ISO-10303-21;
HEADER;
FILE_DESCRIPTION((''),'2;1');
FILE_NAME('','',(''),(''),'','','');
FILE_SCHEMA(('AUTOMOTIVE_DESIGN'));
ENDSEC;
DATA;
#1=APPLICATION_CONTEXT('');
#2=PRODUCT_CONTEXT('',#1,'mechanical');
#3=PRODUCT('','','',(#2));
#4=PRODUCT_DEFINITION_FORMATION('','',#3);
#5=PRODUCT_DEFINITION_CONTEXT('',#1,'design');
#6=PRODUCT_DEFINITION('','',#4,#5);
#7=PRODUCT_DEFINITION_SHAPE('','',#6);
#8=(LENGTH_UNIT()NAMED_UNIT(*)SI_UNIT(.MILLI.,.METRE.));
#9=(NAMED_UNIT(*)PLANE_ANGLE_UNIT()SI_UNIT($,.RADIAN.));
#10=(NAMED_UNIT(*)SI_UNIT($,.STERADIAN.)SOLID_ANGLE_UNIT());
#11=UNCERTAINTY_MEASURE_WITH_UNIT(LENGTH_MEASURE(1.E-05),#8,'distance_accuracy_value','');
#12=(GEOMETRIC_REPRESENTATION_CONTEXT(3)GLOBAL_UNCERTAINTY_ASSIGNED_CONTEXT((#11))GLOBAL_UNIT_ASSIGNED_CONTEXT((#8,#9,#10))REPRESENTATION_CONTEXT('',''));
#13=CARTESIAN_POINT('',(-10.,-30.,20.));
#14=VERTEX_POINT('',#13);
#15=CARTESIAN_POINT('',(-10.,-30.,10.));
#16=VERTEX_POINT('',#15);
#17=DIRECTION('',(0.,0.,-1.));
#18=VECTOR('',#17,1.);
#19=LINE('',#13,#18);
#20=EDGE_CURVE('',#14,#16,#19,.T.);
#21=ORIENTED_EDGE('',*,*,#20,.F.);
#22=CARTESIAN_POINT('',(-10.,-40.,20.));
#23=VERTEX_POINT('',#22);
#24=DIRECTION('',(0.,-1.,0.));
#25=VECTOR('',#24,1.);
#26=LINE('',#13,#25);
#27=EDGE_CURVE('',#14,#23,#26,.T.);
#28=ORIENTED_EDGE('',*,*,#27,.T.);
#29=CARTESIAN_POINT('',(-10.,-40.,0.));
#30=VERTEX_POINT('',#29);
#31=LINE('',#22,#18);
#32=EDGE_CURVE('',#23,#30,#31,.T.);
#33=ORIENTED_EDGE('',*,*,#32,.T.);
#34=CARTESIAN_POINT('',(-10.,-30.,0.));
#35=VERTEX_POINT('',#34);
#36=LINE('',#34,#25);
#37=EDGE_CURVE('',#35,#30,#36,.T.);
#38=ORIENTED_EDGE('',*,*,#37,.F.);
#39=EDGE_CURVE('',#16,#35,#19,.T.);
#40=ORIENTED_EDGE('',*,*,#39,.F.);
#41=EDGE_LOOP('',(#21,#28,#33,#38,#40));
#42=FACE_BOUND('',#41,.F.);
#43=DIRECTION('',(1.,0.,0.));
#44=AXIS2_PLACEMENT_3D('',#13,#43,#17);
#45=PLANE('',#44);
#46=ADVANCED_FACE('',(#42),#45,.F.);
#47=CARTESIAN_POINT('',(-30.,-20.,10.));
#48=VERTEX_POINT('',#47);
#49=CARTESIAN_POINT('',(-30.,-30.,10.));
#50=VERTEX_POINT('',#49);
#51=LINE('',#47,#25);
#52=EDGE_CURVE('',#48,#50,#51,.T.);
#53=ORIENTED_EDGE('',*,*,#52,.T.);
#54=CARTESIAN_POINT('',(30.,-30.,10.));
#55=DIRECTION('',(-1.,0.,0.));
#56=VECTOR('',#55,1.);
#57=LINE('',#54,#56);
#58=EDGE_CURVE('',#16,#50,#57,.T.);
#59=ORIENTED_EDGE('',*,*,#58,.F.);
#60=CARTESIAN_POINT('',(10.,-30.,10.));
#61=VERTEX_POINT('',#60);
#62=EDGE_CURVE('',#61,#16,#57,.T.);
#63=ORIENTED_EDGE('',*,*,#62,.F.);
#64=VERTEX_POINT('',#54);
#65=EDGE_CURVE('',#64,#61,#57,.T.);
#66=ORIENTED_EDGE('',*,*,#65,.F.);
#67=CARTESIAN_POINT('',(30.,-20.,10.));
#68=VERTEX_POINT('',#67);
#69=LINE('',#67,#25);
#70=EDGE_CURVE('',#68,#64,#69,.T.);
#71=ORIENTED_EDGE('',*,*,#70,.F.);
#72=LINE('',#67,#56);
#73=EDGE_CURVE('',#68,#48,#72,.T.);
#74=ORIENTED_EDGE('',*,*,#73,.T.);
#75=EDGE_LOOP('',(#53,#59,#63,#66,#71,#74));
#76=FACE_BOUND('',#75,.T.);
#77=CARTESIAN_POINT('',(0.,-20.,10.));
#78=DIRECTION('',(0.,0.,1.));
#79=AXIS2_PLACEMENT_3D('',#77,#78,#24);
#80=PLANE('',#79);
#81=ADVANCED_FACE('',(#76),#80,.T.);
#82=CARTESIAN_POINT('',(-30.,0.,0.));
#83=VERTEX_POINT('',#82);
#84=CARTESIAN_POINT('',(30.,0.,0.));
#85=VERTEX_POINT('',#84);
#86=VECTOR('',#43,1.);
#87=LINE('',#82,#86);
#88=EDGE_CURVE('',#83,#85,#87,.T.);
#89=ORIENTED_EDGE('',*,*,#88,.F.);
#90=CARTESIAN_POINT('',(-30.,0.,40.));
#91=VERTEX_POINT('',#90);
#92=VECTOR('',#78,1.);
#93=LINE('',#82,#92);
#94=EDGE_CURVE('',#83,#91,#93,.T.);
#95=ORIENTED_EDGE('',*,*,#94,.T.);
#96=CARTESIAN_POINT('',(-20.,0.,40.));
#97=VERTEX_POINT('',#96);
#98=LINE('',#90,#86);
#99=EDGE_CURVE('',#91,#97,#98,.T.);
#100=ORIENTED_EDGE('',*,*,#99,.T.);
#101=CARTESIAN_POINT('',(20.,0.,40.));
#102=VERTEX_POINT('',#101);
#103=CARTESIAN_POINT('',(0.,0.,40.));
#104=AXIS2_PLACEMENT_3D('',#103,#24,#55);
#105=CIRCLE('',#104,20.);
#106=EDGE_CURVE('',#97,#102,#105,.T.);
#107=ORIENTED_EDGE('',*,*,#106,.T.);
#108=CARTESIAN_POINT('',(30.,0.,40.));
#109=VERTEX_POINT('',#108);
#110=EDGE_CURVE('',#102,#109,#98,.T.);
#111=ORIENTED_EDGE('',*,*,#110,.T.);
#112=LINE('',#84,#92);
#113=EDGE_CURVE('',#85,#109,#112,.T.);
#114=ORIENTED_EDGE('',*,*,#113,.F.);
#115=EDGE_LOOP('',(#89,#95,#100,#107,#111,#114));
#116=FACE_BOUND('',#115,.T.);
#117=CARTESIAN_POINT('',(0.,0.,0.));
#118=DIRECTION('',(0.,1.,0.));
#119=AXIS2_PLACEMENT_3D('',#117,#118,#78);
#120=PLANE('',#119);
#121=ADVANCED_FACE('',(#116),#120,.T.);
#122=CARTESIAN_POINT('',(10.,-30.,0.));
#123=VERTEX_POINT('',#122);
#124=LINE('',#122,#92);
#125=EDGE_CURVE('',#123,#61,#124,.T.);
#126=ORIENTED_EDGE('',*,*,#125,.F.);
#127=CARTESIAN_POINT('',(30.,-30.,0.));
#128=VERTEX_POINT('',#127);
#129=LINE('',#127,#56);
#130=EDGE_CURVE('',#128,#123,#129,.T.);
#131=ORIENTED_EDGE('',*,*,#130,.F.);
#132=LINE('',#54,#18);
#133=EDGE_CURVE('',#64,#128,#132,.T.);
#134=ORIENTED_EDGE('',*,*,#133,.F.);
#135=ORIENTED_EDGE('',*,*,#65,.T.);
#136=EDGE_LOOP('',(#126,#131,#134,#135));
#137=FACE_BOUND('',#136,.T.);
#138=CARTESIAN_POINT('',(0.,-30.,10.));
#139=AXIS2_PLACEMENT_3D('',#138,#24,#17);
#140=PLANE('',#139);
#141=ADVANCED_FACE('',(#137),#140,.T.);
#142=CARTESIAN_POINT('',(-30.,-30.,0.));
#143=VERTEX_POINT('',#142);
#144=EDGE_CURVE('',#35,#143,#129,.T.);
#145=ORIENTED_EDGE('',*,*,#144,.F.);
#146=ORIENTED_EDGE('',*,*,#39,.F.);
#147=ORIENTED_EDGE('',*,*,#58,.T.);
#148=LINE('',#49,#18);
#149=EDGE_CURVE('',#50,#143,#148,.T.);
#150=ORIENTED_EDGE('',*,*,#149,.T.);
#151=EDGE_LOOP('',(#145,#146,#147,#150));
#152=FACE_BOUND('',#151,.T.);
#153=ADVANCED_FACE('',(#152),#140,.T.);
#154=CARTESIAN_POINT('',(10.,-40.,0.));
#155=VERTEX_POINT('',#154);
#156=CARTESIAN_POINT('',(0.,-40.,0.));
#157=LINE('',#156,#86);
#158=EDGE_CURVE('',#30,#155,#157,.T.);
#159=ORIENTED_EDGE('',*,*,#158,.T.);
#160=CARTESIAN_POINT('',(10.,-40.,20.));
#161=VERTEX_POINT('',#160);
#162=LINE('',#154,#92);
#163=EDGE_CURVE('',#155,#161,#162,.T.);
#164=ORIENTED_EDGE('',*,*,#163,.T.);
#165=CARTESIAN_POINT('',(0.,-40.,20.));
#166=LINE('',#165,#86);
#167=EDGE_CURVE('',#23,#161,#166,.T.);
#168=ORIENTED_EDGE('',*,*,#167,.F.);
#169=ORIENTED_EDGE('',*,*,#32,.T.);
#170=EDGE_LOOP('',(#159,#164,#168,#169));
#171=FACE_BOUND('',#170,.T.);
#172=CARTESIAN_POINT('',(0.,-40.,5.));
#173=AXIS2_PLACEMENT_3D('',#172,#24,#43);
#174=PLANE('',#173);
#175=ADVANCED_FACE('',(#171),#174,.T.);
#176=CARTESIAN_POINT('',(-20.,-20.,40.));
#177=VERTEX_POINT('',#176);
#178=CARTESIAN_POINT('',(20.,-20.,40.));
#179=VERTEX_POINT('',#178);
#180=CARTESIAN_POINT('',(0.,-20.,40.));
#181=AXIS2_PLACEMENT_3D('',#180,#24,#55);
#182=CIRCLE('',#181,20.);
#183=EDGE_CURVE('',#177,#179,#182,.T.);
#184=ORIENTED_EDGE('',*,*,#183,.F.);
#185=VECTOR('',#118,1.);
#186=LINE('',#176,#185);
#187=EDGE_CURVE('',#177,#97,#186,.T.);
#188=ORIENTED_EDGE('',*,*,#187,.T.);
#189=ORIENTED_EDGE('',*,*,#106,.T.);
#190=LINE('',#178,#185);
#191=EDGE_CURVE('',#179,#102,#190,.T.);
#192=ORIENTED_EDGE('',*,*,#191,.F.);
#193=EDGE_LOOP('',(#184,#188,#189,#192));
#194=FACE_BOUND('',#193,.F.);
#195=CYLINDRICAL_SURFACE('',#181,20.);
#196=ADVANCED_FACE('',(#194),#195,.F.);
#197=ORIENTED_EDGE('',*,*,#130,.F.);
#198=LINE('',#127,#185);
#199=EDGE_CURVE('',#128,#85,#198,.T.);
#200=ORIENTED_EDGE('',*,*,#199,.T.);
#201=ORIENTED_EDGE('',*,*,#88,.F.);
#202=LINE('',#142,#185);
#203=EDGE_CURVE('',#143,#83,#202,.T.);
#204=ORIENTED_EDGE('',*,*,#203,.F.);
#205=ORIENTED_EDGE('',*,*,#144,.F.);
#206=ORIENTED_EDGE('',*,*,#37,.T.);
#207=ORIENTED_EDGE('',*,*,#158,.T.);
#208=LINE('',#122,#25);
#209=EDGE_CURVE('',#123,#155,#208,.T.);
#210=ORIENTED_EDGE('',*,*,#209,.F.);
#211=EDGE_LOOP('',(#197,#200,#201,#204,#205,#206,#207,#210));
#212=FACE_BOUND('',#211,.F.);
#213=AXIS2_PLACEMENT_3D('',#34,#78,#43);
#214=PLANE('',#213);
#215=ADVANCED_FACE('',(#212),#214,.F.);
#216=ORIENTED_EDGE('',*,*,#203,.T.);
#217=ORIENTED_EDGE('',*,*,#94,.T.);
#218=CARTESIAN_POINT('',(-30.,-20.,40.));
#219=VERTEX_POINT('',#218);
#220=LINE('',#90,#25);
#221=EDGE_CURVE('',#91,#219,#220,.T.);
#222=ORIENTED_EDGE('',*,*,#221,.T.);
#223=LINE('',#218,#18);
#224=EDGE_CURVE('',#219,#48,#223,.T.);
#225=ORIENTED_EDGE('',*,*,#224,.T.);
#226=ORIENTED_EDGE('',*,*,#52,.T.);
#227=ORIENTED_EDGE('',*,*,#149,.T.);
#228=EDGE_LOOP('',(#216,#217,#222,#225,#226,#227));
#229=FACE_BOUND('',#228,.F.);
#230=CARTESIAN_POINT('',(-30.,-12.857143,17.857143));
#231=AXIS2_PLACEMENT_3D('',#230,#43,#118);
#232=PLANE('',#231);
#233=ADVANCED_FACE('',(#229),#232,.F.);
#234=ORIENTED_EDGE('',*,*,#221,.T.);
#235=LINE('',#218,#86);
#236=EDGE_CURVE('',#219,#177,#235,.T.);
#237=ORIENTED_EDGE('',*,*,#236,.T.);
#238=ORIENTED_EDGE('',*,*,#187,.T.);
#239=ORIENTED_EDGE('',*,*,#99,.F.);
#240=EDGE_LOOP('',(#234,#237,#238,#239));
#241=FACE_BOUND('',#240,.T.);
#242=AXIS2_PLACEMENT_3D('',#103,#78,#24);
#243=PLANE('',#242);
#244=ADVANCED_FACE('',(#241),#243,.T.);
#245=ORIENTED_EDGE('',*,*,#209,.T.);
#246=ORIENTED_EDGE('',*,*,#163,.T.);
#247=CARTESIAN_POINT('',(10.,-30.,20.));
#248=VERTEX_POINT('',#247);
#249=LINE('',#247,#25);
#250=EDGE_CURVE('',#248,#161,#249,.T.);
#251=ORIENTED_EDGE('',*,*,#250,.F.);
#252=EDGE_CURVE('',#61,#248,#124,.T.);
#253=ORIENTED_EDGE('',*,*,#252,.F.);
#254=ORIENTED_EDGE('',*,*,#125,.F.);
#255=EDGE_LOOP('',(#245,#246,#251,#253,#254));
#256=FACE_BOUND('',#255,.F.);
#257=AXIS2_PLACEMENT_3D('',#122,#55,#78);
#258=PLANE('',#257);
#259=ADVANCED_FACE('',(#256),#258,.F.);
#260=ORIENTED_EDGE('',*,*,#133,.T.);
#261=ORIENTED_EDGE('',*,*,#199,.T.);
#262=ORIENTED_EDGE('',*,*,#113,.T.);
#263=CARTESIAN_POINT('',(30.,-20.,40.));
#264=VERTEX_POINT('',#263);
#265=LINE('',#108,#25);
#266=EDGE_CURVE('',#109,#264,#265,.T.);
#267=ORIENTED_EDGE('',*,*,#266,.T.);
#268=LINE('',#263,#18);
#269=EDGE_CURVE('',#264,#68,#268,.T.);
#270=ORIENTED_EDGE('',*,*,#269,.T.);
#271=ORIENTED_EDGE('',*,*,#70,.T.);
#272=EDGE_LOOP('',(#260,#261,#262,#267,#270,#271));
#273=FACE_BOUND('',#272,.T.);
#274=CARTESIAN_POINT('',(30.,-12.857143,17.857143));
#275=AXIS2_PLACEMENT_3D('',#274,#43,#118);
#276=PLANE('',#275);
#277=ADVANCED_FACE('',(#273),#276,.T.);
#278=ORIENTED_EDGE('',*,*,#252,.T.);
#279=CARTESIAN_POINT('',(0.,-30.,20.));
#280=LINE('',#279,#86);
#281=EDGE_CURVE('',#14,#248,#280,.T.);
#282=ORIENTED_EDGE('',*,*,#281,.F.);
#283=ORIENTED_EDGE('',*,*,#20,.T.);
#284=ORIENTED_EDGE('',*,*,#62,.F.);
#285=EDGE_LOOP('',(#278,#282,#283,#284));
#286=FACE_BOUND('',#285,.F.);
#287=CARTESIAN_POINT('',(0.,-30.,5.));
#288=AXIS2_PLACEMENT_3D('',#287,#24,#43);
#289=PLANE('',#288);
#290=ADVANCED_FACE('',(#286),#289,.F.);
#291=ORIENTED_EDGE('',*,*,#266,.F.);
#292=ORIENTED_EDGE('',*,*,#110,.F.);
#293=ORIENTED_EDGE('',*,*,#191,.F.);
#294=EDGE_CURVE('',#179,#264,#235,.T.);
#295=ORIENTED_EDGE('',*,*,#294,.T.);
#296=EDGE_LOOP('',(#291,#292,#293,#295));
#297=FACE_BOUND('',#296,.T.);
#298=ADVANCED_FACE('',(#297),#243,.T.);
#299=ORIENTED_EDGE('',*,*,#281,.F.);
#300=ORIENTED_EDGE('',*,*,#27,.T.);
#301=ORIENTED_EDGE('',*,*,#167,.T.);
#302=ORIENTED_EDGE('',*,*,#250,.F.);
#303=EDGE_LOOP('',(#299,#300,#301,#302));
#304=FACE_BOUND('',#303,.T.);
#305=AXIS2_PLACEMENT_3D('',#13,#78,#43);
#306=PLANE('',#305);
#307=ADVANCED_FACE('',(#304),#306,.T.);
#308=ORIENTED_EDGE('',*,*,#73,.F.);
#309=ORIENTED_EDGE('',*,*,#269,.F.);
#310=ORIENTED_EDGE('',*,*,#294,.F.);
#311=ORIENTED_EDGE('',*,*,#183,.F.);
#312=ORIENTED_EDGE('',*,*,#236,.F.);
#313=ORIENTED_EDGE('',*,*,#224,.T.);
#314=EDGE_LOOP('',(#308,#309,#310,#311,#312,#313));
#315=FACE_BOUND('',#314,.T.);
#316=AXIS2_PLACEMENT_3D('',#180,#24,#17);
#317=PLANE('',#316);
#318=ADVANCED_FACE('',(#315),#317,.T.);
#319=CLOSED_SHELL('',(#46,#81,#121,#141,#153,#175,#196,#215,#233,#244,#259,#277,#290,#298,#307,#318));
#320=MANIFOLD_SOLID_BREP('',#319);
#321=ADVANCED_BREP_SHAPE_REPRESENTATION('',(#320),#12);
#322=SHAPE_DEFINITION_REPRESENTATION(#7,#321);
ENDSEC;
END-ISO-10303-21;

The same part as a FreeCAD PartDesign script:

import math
import FreeCAD as App
import Part
import Sketcher
from FreeCAD import Vector

doc = App.newDocument("Part")
body = doc.addObject("PartDesign::Body", "Body")

# Sketch on YZ plane
sketch1 = body.newObject("Sketcher::SketchObject", "Sketch")
sketch1.AttachmentSupport = (doc.getObject("YZ_Plane"), [""])
sketch1.MapMode = "FlatFace"
sketch1.addGeometry([
    Part.LineSegment(Vector(-30, 0, 0), Vector(0, 0, 0)),  # 0
    Part.LineSegment(Vector(0, 0, 0), Vector(0, 40, 0)),  # 1
    Part.LineSegment(Vector(0, 40, 0), Vector(-20, 40, 0)),  # 2
    Part.LineSegment(Vector(-20, 40, 0), Vector(-20, 10, 0)),  # 3
    Part.LineSegment(Vector(-20, 10, 0), Vector(-30, 10, 0)),  # 4
    Part.LineSegment(Vector(-30, 10, 0), Vector(-30, 0, 0)),  # 5
], False)
sketch1.addConstraint([
    Sketcher.Constraint("Coincident", 0, 2, 1, 1),
    Sketcher.Constraint("Coincident", 1, 2, 2, 1),
    Sketcher.Constraint("Coincident", 2, 2, 3, 1),
    Sketcher.Constraint("Coincident", 3, 2, 4, 1),
    Sketcher.Constraint("Coincident", 4, 2, 5, 1),
    Sketcher.Constraint("Coincident", 5, 2, 0, 1),
    Sketcher.Constraint("Horizontal", 0),
    Sketcher.Constraint("Vertical", 1),
    Sketcher.Constraint("Horizontal", 2),
    Sketcher.Constraint("Vertical", 3),
    Sketcher.Constraint("Horizontal", 4),
    Sketcher.Constraint("Vertical", 5),
    Sketcher.Constraint("Coincident", 0, 2, -1, 1),
    Sketcher.Constraint("Equal", 0, 3),
    Sketcher.Constraint("Equal", 4, 5),
    Sketcher.Constraint("DistanceX", 0, 1, 0, 2, 30.0),
    Sketcher.Constraint("DistanceX", 2, 2, 2, 1, 20.0),
])
pad1 = body.newObject("PartDesign::Pad", "Pad")
pad1.Profile = sketch1
pad1.Length = 60
pad1.Midplane = True

# Sketch on XZ plane
sketch2 = body.newObject("Sketcher::SketchObject", "Sketch001")
sketch2.AttachmentSupport = (doc.getObject("XZ_Plane"), [""])
sketch2.MapMode = "FlatFace"
sketch2.AttachmentOffset = App.Placement(Vector(0, 0, 20), App.Rotation())
sketch2.addGeometry([
    Part.LineSegment(Vector(20, 40, 0), Vector(-20, 40, 0)),
    Part.ArcOfCircle(Part.Circle(Vector(0, 40, 0), Vector(0, 0, 1), 20), math.radians(180), math.radians(360)),
], False)
sketch2.addConstraint([
    Sketcher.Constraint("Coincident", 0, 1, 1, 2),
    Sketcher.Constraint("Coincident", 1, 1, 0, 2),
    Sketcher.Constraint("Horizontal", 0),
    Sketcher.Constraint("PointOnObject", 1, 3, -2),
    Sketcher.Constraint("Horizontal", 1, 3, 0, 1),
    Sketcher.Constraint("Radius", 1, 20.0),
    Sketcher.Constraint("DistanceY", -1, 1, 1, 3, 40.0),
])
pocket1 = body.newObject("PartDesign::Pocket", "Pocket")
pocket1.Profile = sketch2
pocket1.Type = "ThroughAll"

# Sketch on XZ plane
sketch3 = body.newObject("Sketcher::SketchObject", "Sketch002")
sketch3.AttachmentSupport = (doc.getObject("XZ_Plane"), [""])
sketch3.MapMode = "FlatFace"
sketch3.AttachmentOffset = App.Placement(Vector(0, 0, 30), App.Rotation())
sketch3.addGeometry([
    Part.LineSegment(Vector(-10, 0, 0), Vector(10, 0, 0)),
    Part.LineSegment(Vector(10, 0, 0), Vector(10, 20, 0)),
    Part.LineSegment(Vector(10, 20, 0), Vector(-10, 20, 0)),
    Part.LineSegment(Vector(-10, 20, 0), Vector(-10, 0, 0)),
], False)
sketch3.addConstraint([
    Sketcher.Constraint("Coincident", 0, 2, 1, 1),
    Sketcher.Constraint("Coincident", 1, 2, 2, 1),
    Sketcher.Constraint("Coincident", 2, 2, 3, 1),
    Sketcher.Constraint("Coincident", 3, 2, 0, 1),
    Sketcher.Constraint("Horizontal", 0),
    Sketcher.Constraint("Vertical", 1),
    Sketcher.Constraint("Horizontal", 2),
    Sketcher.Constraint("Vertical", 3),
    Sketcher.Constraint("Symmetric", 0, 2, 3, 2, -1, 1),
    Sketcher.Constraint("Equal", 2, 1),
    Sketcher.Constraint("DistanceX", 0, 1, 0, 2, 20.0),
])
pad2 = body.newObject("PartDesign::Pad", "Pad001")
pad2.Profile = sketch3
pad2.Length = 10

doc.recompute()
